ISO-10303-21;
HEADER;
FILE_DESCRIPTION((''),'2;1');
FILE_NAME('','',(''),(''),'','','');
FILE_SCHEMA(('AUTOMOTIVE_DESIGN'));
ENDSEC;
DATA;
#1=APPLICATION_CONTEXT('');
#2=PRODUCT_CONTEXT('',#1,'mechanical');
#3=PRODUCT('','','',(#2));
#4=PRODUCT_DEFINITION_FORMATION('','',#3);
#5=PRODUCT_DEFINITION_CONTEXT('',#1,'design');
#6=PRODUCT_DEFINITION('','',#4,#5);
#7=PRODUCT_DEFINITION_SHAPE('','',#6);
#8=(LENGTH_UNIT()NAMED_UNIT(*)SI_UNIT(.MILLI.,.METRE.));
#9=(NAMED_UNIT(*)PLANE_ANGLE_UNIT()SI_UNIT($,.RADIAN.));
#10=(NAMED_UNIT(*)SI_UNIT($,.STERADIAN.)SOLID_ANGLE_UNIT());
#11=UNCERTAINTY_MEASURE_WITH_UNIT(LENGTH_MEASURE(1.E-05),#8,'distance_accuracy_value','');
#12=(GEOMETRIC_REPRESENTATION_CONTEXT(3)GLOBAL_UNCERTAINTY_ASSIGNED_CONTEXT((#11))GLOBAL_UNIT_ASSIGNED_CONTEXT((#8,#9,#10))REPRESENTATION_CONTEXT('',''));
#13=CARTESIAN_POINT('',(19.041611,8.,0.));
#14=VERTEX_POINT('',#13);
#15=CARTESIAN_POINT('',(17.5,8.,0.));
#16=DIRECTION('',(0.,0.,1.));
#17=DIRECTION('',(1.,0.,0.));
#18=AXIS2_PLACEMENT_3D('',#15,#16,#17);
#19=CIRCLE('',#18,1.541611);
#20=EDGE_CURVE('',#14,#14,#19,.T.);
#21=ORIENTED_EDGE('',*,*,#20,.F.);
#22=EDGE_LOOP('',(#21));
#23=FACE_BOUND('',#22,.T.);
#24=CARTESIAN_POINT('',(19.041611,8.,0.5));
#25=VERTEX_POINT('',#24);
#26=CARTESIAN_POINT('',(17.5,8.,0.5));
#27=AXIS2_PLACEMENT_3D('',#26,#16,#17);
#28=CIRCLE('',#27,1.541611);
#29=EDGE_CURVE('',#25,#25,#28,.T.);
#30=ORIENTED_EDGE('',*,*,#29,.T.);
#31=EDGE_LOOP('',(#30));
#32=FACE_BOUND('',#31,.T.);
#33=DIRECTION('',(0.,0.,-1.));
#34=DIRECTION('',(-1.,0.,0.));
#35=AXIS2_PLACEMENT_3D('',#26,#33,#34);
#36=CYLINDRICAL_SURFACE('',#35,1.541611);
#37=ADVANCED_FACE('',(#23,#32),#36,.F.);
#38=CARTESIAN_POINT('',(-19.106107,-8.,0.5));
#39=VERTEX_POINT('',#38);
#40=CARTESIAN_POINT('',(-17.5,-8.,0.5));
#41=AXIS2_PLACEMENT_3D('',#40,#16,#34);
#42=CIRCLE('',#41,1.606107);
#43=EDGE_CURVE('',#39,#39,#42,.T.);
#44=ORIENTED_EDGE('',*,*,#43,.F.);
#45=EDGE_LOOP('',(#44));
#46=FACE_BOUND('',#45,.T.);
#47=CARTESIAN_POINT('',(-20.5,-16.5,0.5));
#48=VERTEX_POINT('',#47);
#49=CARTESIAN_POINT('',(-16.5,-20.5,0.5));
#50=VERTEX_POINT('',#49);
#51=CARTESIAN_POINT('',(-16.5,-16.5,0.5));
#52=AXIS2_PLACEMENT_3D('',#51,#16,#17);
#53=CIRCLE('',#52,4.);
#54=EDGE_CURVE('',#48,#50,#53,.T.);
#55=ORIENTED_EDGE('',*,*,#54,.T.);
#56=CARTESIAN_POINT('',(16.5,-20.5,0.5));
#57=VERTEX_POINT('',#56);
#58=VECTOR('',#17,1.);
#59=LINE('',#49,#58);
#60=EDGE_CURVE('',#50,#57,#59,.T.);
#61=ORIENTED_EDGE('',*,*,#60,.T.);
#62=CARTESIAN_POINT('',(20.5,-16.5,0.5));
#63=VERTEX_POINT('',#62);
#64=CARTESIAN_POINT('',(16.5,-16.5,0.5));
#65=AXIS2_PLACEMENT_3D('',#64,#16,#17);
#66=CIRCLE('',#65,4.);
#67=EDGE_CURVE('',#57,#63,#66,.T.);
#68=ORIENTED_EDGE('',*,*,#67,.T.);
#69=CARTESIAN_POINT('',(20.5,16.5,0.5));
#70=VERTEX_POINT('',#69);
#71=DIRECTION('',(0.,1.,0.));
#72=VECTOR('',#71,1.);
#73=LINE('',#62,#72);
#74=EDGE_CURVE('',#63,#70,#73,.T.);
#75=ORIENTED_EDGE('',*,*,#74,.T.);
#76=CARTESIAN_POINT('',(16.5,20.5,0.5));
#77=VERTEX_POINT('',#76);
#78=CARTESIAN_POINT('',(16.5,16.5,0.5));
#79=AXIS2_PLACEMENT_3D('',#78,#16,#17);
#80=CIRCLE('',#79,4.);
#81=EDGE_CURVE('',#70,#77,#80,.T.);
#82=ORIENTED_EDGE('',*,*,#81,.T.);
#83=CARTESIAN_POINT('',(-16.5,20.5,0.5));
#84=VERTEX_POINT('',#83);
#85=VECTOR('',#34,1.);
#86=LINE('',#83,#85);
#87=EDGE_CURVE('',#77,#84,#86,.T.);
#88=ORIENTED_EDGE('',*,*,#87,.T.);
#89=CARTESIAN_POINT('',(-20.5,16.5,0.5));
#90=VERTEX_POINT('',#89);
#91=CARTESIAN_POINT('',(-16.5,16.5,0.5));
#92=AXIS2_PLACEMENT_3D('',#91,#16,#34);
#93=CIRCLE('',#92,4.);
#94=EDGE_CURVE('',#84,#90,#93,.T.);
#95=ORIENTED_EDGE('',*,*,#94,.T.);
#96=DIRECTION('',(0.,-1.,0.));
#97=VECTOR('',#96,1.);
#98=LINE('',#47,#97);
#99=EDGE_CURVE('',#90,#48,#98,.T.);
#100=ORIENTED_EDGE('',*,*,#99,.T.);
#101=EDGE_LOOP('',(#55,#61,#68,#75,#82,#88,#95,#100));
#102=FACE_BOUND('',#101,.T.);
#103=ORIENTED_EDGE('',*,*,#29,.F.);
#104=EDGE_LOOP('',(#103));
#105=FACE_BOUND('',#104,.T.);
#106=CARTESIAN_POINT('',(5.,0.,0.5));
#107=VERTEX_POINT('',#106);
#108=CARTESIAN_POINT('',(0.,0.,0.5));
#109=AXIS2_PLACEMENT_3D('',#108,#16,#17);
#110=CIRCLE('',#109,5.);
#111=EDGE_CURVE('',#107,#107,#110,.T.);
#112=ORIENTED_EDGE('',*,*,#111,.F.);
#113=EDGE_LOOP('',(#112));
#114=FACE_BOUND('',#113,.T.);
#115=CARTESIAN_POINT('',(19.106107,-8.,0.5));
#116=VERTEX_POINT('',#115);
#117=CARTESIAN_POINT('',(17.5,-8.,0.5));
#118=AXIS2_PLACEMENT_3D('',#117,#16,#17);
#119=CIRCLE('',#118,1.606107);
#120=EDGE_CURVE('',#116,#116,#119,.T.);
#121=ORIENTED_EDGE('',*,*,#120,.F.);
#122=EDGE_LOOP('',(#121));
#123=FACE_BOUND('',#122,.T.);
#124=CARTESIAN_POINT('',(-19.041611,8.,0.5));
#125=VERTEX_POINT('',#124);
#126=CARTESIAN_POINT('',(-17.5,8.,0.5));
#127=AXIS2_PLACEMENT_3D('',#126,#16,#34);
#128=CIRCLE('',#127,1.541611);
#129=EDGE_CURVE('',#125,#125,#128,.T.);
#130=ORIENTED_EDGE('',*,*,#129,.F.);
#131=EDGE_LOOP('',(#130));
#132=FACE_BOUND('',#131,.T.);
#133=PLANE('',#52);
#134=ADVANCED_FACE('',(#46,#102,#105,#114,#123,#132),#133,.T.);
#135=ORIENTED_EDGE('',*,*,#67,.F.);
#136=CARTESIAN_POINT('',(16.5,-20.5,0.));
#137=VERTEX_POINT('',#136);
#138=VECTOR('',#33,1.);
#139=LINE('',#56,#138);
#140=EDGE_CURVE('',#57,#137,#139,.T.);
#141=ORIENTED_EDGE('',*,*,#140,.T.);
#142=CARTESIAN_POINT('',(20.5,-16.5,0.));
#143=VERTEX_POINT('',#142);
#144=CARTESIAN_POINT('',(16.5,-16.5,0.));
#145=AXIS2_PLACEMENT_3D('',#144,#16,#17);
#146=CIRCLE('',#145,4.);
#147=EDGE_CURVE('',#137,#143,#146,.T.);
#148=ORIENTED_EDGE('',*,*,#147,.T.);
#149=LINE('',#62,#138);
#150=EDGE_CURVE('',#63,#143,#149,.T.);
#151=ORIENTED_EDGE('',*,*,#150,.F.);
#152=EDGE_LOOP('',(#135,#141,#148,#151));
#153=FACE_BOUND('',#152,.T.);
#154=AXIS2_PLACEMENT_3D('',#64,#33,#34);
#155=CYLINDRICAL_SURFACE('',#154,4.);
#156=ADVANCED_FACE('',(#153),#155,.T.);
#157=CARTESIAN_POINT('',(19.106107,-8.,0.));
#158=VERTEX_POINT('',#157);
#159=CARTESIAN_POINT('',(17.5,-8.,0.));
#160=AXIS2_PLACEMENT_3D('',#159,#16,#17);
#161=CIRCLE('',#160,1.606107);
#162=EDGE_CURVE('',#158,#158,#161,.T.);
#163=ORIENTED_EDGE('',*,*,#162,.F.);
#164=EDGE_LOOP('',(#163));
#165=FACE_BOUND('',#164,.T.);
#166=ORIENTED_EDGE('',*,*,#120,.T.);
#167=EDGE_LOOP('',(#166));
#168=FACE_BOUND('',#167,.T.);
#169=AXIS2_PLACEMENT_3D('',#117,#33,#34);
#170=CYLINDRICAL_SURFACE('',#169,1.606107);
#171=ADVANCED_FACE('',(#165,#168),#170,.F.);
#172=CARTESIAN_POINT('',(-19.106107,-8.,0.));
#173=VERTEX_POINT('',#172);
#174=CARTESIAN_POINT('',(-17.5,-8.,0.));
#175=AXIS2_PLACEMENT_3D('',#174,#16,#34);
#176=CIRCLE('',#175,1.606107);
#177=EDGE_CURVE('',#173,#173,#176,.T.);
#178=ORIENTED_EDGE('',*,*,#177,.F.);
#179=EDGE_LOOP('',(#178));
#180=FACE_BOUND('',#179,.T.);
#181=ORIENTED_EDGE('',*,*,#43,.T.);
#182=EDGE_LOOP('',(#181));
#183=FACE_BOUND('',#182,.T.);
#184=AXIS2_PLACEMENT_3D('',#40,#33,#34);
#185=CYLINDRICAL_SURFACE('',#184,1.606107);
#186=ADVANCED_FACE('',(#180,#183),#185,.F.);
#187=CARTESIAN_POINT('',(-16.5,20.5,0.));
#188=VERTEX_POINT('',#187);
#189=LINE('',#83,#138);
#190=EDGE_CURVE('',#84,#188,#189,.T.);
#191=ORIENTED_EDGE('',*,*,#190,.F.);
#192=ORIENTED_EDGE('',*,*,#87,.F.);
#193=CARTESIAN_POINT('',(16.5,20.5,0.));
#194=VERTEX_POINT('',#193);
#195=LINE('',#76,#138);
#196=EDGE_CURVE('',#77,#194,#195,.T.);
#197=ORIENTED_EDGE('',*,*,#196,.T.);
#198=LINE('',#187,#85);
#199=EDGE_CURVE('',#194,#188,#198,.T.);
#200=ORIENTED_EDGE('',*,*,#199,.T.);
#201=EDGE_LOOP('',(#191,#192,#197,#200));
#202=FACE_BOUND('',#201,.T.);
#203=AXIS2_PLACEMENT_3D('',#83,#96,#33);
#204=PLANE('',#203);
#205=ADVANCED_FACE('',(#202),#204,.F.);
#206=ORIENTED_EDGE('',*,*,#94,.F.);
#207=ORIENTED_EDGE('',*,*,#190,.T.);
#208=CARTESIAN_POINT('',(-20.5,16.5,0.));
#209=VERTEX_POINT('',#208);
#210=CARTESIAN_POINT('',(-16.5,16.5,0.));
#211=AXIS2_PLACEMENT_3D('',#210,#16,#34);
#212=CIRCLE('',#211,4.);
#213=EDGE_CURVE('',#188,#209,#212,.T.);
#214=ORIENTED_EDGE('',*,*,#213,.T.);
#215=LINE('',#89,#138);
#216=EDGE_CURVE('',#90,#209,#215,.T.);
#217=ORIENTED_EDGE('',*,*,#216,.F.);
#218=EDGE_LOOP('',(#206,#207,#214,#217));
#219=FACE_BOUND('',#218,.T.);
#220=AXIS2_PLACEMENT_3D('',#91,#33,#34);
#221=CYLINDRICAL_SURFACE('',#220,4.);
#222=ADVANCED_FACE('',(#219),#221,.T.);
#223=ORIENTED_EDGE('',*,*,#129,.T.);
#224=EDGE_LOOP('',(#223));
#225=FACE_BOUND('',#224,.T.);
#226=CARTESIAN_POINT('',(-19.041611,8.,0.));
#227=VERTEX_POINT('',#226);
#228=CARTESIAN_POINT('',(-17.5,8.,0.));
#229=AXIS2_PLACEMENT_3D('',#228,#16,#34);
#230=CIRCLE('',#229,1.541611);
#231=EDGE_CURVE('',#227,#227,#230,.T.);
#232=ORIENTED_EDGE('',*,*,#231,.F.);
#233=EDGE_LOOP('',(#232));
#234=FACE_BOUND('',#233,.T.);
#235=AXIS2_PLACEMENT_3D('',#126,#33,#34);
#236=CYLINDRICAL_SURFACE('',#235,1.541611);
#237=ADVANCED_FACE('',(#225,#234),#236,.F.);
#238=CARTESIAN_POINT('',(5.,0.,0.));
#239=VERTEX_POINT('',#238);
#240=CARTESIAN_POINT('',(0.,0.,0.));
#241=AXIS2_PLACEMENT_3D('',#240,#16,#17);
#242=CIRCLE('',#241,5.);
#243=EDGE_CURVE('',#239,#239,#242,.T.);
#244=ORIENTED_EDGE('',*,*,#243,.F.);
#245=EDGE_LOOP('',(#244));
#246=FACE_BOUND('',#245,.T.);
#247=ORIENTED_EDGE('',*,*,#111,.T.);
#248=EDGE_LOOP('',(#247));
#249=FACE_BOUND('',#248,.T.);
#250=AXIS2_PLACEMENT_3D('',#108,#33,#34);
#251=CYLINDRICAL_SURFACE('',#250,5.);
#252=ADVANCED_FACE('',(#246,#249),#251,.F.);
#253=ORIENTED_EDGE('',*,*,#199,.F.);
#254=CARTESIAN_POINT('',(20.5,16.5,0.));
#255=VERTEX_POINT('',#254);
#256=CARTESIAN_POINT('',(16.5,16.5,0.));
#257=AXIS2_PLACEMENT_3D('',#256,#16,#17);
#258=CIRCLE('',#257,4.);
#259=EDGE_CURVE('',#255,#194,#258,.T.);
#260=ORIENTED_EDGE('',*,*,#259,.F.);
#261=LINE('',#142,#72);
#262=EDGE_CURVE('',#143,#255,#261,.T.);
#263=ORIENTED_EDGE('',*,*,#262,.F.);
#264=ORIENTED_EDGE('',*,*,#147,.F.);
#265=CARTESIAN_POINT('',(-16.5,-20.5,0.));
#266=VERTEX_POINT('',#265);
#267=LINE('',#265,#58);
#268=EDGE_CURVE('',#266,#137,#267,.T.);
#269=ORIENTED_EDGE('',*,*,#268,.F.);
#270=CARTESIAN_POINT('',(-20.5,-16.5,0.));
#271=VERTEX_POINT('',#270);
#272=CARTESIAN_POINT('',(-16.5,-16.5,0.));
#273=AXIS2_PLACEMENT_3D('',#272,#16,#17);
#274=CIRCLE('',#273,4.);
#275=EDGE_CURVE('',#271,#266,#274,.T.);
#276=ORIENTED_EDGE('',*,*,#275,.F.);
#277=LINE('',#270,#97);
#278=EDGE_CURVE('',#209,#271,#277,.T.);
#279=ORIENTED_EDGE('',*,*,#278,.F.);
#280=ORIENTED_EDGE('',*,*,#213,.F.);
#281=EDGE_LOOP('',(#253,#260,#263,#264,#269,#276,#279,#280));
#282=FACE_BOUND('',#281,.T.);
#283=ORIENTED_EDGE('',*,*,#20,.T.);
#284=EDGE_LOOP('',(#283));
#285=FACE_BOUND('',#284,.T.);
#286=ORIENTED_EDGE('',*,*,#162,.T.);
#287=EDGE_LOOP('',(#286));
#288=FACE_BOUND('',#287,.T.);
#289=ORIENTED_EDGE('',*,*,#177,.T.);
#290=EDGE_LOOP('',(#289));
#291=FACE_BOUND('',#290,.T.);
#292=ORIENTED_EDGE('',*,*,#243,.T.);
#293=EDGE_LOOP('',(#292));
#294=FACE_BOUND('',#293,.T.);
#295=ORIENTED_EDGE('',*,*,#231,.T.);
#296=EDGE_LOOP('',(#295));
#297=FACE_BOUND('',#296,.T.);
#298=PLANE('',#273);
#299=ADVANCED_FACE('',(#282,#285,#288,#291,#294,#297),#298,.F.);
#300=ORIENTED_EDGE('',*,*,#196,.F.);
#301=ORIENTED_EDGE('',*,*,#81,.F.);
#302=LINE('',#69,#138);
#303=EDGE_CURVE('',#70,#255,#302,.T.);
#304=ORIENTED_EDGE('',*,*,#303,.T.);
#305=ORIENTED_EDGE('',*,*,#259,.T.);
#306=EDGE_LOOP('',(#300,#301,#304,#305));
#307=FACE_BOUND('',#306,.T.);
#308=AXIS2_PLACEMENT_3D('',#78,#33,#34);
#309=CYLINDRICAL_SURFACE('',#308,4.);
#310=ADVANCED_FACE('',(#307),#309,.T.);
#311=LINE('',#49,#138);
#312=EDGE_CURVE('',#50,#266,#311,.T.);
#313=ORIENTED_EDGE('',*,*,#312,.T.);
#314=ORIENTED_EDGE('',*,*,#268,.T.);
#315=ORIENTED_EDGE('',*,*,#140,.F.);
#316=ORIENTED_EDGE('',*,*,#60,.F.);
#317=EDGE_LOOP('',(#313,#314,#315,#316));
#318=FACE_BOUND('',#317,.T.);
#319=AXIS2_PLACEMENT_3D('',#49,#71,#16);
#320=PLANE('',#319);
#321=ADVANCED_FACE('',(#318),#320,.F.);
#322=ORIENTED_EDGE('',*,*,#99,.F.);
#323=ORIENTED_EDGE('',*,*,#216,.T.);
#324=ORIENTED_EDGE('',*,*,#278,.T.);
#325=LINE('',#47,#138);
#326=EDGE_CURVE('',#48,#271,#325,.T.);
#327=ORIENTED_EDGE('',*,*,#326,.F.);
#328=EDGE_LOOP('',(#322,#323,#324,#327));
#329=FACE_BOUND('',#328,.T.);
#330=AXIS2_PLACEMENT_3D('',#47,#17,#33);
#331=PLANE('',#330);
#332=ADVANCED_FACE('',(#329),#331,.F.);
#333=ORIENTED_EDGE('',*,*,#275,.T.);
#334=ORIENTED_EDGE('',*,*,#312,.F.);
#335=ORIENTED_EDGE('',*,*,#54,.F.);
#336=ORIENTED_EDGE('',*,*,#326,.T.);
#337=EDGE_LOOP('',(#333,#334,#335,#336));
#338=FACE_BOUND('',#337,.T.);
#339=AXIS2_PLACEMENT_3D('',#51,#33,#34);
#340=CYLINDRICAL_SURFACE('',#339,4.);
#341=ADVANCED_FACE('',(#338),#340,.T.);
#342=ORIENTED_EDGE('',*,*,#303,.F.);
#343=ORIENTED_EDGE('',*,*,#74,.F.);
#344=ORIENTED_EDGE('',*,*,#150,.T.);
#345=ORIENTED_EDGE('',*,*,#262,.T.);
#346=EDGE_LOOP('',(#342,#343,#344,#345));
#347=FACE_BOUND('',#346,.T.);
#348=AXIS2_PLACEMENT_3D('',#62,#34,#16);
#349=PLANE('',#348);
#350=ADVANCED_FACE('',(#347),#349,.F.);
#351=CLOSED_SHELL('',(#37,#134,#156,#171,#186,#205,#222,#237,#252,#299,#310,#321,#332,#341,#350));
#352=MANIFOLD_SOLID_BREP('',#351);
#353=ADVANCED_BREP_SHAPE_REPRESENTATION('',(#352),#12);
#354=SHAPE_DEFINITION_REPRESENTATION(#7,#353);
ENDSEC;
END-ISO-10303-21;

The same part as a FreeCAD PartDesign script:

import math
import FreeCAD as App
import Part
import Sketcher

V = App.Vector
Q = App.Units.Quantity

doc = App.newDocument("Part")
body = doc.addObject("PartDesign::Body", "Body")

# Sketch on XY plane
sketch1 = body.newObject("Sketcher::SketchObject", "Sketch")
sketch1.AttachmentSupport = (doc.getObject("XY_Plane"), [""])
sketch1.MapMode = "FlatFace"
sketch1.addGeometry(Part.LineSegment(V(-16.5, -20.5, 0), V(16.5, -20.5, 0)), False)
sketch1.addGeometry(Part.ArcOfCircle(Part.Circle(V(16.5, -16.5, 0), V(0, 0, 1), 4), math.radians(-90), math.radians(0)), False)
sketch1.addGeometry(Part.LineSegment(V(20.5, -16.5, 0), V(20.5, 16.5, 0)), False)
sketch1.addGeometry(Part.ArcOfCircle(Part.Circle(V(16.5, 16.5, 0), V(0, 0, 1), 4), math.radians(0), math.radians(90)), False)
sketch1.addGeometry(Part.LineSegment(V(16.5, 20.5, 0), V(-16.5, 20.5, 0)), False)
sketch1.addGeometry(Part.ArcOfCircle(Part.Circle(V(-16.5, 16.5, 0), V(0, 0, 1), 4), math.radians(90), math.radians(180)), False)
sketch1.addGeometry(Part.LineSegment(V(-20.5, 16.5, 0), V(-20.5, -16.5, 0)), False)
sketch1.addGeometry(Part.ArcOfCircle(Part.Circle(V(-16.5, -16.5, 0), V(0, 0, 1), 4), math.radians(180), math.radians(270)), False)
sketch1.addGeometry(Part.Circle(V(-17.5, -8, 0), V(0, 0, 1), 1.606107), False)
sketch1.addGeometry(Part.Circle(V(17.5, -8, 0), V(0, 0, 1), 1.606107), False)
sketch1.addGeometry(Part.Circle(V(-17.5, 8, 0), V(0, 0, 1), 1.541611), False)
sketch1.addGeometry(Part.Circle(V(0, 0, 0), V(0, 0, 1), 5), False)
sketch1.addGeometry(Part.Circle(V(17.5, 8, 0), V(0, 0, 1), 1.541611), False)
sketch1.addConstraint(Sketcher.Constraint("Tangent", 0, 2, 1, 1))
sketch1.addConstraint(Sketcher.Constraint("Tangent", 1, 2, 2, 1))
sketch1.addConstraint(Sketcher.Constraint("Tangent", 2, 2, 3, 1))
sketch1.addConstraint(Sketcher.Constraint("Tangent", 3, 2, 4, 1))
sketch1.addConstraint(Sketcher.Constraint("Tangent", 4, 2, 5, 1))
sketch1.addConstraint(Sketcher.Constraint("Tangent", 5, 2, 6, 1))
sketch1.addConstraint(Sketcher.Constraint("Tangent", 6, 2, 7, 1))
sketch1.addConstraint(Sketcher.Constraint("Tangent", 7, 2, 0, 1))
sketch1.addConstraint(Sketcher.Constraint("Horizontal", 0))
sketch1.addConstraint(Sketcher.Constraint("Vertical", 2))
sketch1.addConstraint(Sketcher.Constraint("Horizontal", 4))
sketch1.addConstraint(Sketcher.Constraint("Vertical", 6))
sketch1.addConstraint(Sketcher.Constraint("Coincident", 11, 3, -1, 1))
sketch1.addConstraint(Sketcher.Constraint("Equal", 1, 3))
sketch1.addConstraint(Sketcher.Constraint("Equal", 3, 5))
sketch1.addConstraint(Sketcher.Constraint("Equal", 5, 7))
sketch1.addConstraint(Sketcher.Constraint("Equal", 8, 9))
sketch1.addConstraint(Sketcher.Constraint("Equal", 10, 12))
sketch1.addConstraint(Sketcher.Constraint("Symmetric", 1, 3, 5, 3, -1, 1))
sketch1.addConstraint(Sketcher.Constraint("Symmetric", 9, 3, 10, 3, -1, 1))
sketch1.addConstraint(Sketcher.Constraint("Symmetric", 8, 3, 12, 3, -1, 1))
sketch1.addConstraint(Sketcher.Constraint("Symmetric", 8, 3, 9, 3, -2))
sketch1.addConstraint(Sketcher.Constraint("Equal", 4, 2))
sketch1.addConstraint(Sketcher.Constraint("Diameter", 11, Q("10 mm")))
sketch1.addConstraint(Sketcher.Constraint("Radius", 1, Q("4 mm")))
sketch1.addConstraint(Sketcher.Constraint("DistanceX", 0, 1, 0, 2, Q("33 mm")))
sketch1.addConstraint(Sketcher.Constraint("DistanceY", 8, 3, -1, 1, Q("8 mm")))
sketch1.addConstraint(Sketcher.Constraint("DistanceX", 8, 3, 7, 3, Q("1 mm")))
sketch1.addConstraint(Sketcher.Constraint("Diameter", 8, Q("3.212215 mm")))
sketch1.addConstraint(Sketcher.Constraint("Diameter", 10, Q("3.083222 mm")))
pad1 = body.newObject("PartDesign::Pad", "Pad")
pad1.Profile = sketch1
pad1.Length = 0.5

doc.recompute()
